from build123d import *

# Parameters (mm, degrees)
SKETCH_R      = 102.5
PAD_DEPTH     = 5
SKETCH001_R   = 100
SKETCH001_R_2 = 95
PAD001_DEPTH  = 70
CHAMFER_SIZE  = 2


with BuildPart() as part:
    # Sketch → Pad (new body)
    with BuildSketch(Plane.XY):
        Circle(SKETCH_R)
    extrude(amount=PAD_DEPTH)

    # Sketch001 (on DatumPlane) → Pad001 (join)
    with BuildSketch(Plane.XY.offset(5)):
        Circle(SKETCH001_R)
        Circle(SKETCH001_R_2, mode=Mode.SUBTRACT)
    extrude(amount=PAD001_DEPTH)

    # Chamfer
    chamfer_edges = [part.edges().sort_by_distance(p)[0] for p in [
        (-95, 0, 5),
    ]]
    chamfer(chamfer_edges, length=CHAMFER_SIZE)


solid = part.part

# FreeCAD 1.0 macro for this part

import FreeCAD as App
import Part
import Sketcher

V = App.Vector


def edges_at(feature, points):
    """Names of the edges that pass closest to the given points."""
    edges = feature.Shape.Edges
    near = lambda p: min(range(len(edges)), key=lambda i: edges[i].distToShape(Part.Vertex(*p))[0])
    return sorted({f"Edge{near(p) + 1}" for p in points})

doc = App.newDocument("Part")
params = doc.addObject("Spreadsheet::Sheet", "Params")
for row, (alias, value) in enumerate([
    ("sketch1_diameter", "205 mm"),
    ("pad1_length", "5 mm"),
    ("sketch2_diameter", "200 mm"),
    ("sketch2_diameter2", "190 mm"),
    ("pad2_length", "70 mm"),
    ("chamfer_size", "2 mm"),
], start=1):
    params.set(f"A{row}", alias)
    params.set(f"B{row}", "=" + value)
    params.setAlias(f"B{row}", alias)

body = doc.addObject("PartDesign::Body", "Body")

sketch1 = body.newObject("Sketcher::SketchObject", "Sketch")
sketch1.AttachmentSupport = (doc.getObject("XY_Plane"), [""])
sketch1.MapMode = "FlatFace"
sketch1.addGeometry(Part.Circle(V(0, 0, 0), V(0, 0, 1), 102.5), False)
sketch1.addConstraint([
    Sketcher.Constraint("Coincident", 0, 3, -1, 1),
    Sketcher.Constraint("Diameter", 0, 205.0),
])
sketch1.setExpression("Constraints[1]", "Params.sketch1_diameter")
pad1 = body.newObject("PartDesign::Pad", "Pad")
pad1.Profile = sketch1
pad1.setExpression("Length", "Params.pad1_length")

sketch2 = body.newObject("Sketcher::SketchObject", "Sketch001")
sketch2.AttachmentSupport = (doc.getObject("XY_Plane"), [""])
sketch2.MapMode = "FlatFace"
sketch2.AttachmentOffset = App.Placement(V(0, 0, 5), App.Rotation())
sketch2.addGeometry([
    Part.Circle(V(0, 0, 0), V(0, 0, 1), 100),
    Part.Circle(V(0, 0, 0), V(0, 0, 1), 95),
], False)
sketch2.addConstraint([
    Sketcher.Constraint("Coincident", 0, 3, -1, 1),
    Sketcher.Constraint("Coincident", 1, 3, -1, 1),
    Sketcher.Constraint("Diameter", 0, 200.0),
    Sketcher.Constraint("Diameter", 1, 190.0),
])
sketch2.setExpression("Constraints[2]", "Params.sketch2_diameter")
sketch2.setExpression("Constraints[3]", "Params.sketch2_diameter2")
pad2 = body.newObject("PartDesign::Pad", "Pad001")
pad2.Profile = sketch2
pad2.setExpression("Length", "Params.pad2_length")
doc.recompute()

chamfer = body.newObject("PartDesign::Chamfer", "Chamfer")
chamfer.Base = (pad2, edges_at(pad2, [(-95, 0, 5)]))
chamfer.setExpression("Size", "Params.chamfer_size")

doc.recompute()
